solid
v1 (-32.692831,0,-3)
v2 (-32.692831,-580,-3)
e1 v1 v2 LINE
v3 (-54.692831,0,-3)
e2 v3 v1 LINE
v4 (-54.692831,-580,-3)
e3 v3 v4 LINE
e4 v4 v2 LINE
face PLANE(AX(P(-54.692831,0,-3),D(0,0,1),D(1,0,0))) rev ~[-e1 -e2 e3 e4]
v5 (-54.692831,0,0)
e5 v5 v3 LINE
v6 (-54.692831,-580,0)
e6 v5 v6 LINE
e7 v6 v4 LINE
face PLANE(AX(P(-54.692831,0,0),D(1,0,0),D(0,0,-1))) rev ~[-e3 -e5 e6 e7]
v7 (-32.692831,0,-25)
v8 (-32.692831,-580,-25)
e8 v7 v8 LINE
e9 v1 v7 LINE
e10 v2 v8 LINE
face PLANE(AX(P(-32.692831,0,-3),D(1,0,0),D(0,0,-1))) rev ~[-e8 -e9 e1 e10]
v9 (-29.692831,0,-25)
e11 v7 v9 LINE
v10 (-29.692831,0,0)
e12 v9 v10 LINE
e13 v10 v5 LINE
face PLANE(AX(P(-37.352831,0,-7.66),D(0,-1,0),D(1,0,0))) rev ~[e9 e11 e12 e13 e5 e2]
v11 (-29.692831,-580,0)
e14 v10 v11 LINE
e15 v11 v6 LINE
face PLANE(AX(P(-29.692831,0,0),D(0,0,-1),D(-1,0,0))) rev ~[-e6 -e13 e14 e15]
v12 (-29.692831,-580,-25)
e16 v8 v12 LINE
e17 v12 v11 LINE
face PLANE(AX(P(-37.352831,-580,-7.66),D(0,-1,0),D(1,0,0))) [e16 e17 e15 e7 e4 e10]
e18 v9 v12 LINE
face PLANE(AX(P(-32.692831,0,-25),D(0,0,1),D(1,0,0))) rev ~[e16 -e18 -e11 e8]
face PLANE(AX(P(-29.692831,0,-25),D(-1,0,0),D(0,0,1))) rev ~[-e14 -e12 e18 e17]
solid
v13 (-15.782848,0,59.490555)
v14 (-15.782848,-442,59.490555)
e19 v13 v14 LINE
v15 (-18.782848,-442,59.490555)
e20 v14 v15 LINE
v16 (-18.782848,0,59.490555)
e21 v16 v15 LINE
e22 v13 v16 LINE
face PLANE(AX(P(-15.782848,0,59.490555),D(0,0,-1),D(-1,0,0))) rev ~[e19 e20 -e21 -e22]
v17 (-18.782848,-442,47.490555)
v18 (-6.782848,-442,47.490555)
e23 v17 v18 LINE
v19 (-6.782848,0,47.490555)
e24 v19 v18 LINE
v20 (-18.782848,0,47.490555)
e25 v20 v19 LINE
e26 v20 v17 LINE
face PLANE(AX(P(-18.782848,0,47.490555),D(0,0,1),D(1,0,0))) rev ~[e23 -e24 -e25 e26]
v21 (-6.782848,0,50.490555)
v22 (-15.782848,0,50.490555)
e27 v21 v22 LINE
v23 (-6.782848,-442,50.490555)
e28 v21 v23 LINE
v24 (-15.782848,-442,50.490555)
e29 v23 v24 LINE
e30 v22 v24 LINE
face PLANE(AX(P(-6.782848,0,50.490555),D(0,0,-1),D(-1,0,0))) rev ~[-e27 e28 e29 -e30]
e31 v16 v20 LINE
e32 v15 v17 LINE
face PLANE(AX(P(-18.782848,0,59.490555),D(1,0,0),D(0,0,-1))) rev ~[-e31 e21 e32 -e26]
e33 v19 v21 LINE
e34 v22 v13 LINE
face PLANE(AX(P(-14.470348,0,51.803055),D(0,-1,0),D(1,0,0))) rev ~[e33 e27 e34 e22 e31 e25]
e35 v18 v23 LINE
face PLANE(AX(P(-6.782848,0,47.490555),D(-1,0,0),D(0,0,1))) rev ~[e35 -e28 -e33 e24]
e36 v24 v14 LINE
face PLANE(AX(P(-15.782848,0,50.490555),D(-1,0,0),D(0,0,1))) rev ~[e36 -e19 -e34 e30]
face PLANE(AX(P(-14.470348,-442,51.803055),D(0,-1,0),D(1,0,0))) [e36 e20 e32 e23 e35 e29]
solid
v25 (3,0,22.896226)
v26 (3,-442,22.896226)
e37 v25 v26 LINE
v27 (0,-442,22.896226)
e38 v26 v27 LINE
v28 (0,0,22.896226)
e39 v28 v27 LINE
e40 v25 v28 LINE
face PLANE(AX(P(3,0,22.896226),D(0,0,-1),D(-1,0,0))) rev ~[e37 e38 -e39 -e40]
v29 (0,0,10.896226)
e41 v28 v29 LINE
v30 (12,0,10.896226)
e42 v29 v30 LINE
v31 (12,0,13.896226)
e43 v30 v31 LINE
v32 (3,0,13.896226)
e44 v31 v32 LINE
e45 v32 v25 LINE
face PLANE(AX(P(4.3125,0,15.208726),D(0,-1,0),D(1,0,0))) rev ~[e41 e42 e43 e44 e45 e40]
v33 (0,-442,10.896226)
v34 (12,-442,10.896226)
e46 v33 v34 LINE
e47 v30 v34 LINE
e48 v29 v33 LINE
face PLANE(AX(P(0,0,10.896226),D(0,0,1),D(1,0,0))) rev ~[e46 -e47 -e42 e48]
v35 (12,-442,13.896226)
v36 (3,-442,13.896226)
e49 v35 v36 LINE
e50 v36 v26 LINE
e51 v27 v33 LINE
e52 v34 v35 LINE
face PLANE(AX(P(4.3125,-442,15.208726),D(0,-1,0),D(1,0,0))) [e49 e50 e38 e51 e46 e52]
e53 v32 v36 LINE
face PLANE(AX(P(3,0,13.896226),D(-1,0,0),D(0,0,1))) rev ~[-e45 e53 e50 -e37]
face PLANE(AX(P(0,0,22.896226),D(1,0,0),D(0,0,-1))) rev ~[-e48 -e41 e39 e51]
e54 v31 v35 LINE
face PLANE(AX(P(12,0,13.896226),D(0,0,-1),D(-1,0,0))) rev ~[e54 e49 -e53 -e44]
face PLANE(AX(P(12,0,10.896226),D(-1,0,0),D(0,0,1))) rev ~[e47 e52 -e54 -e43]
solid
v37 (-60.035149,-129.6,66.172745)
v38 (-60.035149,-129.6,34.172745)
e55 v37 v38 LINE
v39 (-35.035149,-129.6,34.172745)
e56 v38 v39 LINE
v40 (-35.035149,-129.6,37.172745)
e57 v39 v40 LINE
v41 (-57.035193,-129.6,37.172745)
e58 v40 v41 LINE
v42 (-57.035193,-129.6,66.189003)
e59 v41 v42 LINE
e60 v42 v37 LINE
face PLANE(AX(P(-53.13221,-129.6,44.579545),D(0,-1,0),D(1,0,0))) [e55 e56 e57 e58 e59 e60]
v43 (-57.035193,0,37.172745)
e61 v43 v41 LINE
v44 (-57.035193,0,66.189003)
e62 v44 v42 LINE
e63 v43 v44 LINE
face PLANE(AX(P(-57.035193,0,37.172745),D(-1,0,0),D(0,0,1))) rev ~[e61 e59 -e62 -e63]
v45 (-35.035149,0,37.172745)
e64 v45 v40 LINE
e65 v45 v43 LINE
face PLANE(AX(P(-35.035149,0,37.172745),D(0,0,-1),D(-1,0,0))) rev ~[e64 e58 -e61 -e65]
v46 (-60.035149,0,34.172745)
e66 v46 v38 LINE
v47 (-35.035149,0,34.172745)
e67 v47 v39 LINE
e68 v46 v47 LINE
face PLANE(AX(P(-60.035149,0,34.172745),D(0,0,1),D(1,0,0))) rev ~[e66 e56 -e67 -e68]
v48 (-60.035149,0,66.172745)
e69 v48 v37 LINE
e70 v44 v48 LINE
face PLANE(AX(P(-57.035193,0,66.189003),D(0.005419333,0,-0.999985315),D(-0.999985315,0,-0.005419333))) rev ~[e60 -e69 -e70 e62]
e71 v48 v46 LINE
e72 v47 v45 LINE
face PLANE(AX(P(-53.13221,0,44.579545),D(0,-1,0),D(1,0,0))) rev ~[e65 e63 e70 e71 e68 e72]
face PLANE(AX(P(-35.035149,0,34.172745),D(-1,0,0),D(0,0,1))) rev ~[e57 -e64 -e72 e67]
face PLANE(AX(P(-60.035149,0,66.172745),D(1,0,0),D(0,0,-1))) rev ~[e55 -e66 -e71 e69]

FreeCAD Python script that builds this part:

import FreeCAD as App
import Part
import Sketcher

V = App.Vector


def add_polygon(sketch, points):
    """Adds a closed chain of lines whose ends are joined by coincident constraints."""
    first, n = sketch.GeometryCount, len(points)
    for a, b in zip(points, points[1:] + points[:1]):
        sketch.addGeometry(Part.LineSegment(App.Vector(*a, 0), App.Vector(*b, 0)), False)
    for i in range(n):
        sketch.addConstraint(Sketcher.Constraint("Coincident", first + i, 2, first + (i + 1) % n, 1))

doc = App.newDocument("Part")
params = doc.addObject("Spreadsheet::Sheet", "Params")
for row, (alias, value) in enumerate([
    ("sketch1_width", "25 mm"),
    ("sketch1_height", "32 mm"),
    ("sketch1_height2", "3 mm"),
    ("sketch1_length", "3 mm"),
    ("pad1_length", "129.6 mm"),
    ("sketch2_width", "12 mm"),
    ("sketch2_width2", "9 mm"),
    ("pad2_length", "442 mm"),
    ("sketch3_width", "3 mm"),
    ("sketch3_width2", "12 mm"),
    ("pad3_length", "442 mm"),
    ("sketch4_width", "25 mm"),
    ("sketch4_width2", "22 mm"),
    ("pad4_length", "580 mm"),
], start=1):
    params.set(f"A{row}", alias)
    params.set(f"B{row}", "=" + value)
    params.setAlias(f"B{row}", alias)

body = doc.addObject("PartDesign::Body", "Body")

sketch1 = body.newObject("Sketcher::SketchObject", "Sketch")
sketch1.AttachmentSupport = (doc.getObject("XZ_Plane"), [""])
sketch1.MapMode = "FlatFace"
add_polygon(sketch1, [(-57, 66.2), (-60, 66.2), (-60, 34.2), (-35, 34.2), (-35, 37.2), (-57, 37.2)])
sketch1.addConstraint(Sketcher.Constraint("Vertical", 1))
sketch1.addConstraint(Sketcher.Constraint("Horizontal", 2))
sketch1.addConstraint(Sketcher.Constraint("Vertical", 3))
sketch1.addConstraint(Sketcher.Constraint("Horizontal", 4))
sketch1.addConstraint(Sketcher.Constraint("Vertical", 5))
sketch1.addConstraint(Sketcher.Constraint("DistanceX", 2, 1, 2, 2, 25.0))
sketch1.addConstraint(Sketcher.Constraint("DistanceY", 1, 2, 1, 1, 32.0))
sketch1.addConstraint(Sketcher.Constraint("DistanceY", 3, 1, 3, 2, 3.0))
sketch1.addConstraint(Sketcher.Constraint("Distance", 0, 3.0))
sketch1.addConstraint(Sketcher.Constraint("DistanceY", 5, 1, 5, 2, 29.016258))
sketch1.addConstraint(Sketcher.Constraint("DistanceX", 0, 2, -1, 1, 60.035149))
sketch1.addConstraint(Sketcher.Constraint("DistanceY", -1, 1, 0, 2, 66.172745))
sketch1.setExpression("Constraints[11]", "Params.sketch1_width")
sketch1.setExpression("Constraints[12]", "Params.sketch1_height")
sketch1.setExpression("Constraints[13]", "Params.sketch1_height2")
sketch1.setExpression("Constraints[14]", "Params.sketch1_length")
pad1 = body.newObject("PartDesign::Pad", "Pad")
pad1.Profile = sketch1
pad1.setExpression("Length", "Params.pad1_length")
body2 = doc.addObject("PartDesign::Body", "Body001")

sketch2 = body2.newObject("Sketcher::SketchObject", "Sketch001")
sketch2.AttachmentSupport = (doc.getObject("XZ_Plane001"), [""])
sketch2.MapMode = "FlatFace"
add_polygon(sketch2, [(0, 22.9), (0, 10.9), (12, 10.9), (12, 13.9), (3, 13.9), (3, 22.9)])
sketch2.addConstraint(Sketcher.Constraint("Vertical", 0))
sketch2.addConstraint(Sketcher.Constraint("Horizontal", 1))
sketch2.addConstraint(Sketcher.Constraint("Vertical", 2))
sketch2.addConstraint(Sketcher.Constraint("Horizontal", 3))
sketch2.addConstraint(Sketcher.Constraint("Vertical", 4))
sketch2.addConstraint(Sketcher.Constraint("Horizontal", 5))
sketch2.addConstraint(Sketcher.Constraint("PointOnObject", 0, 2, -2))
sketch2.addConstraint(Sketcher.Constraint("Equal", 1, 0))
sketch2.addConstraint(Sketcher.Constraint("Equal", 5, 2))
sketch2.addConstraint(Sketcher.Constraint("DistanceX", 1, 1, 1, 2, 12.0))
sketch2.addConstraint(Sketcher.Constraint("DistanceX", 3, 2, 3, 1, 9.0))
sketch2.addConstraint(Sketcher.Constraint("DistanceY", -1, 1, 0, 2, 10.896226))
sketch2.setExpression("Constraints[15]", "Params.sketch2_width")
sketch2.setExpression("Constraints[16]", "Params.sketch2_width2")
pad2 = body2.newObject("PartDesign::Pad", "Pad001")
pad2.Profile = sketch2
pad2.setExpression("Length", "Params.pad2_length")
body3 = doc.addObject("PartDesign::Body", "Body002")

sketch3 = body3.newObject("Sketcher::SketchObject", "Sketch002")
sketch3.AttachmentSupport = (doc.getObject("XZ_Plane002"), [""])
sketch3.MapMode = "FlatFace"
add_polygon(sketch3, [(-15.8, 59.5), (-18.8, 59.5), (-18.8, 47.5), (-6.8, 47.5), (-6.8, 50.5), (-15.8, 50.5)])
sketch3.addConstraint(Sketcher.Constraint("Horizontal", 0))
sketch3.addConstraint(Sketcher.Constraint("Vertical", 1))
sketch3.addConstraint(Sketcher.Constraint("Horizontal", 2))
sketch3.addConstraint(Sketcher.Constraint("Vertical", 3))
sketch3.addConstraint(Sketcher.Constraint("Horizontal", 4))
sketch3.addConstraint(Sketcher.Constraint("Vertical", 5))
sketch3.addConstraint(Sketcher.Constraint("Equal", 2, 1))
sketch3.addConstraint(Sketcher.Constraint("Equal", 0, 3))
sketch3.addConstraint(Sketcher.Constraint("DistanceX", 0, 2, 0, 1, 3.0))
sketch3.addConstraint(Sketcher.Constraint("DistanceX", 2, 1, 2, 2, 12.0))
sketch3.addConstraint(Sketcher.Constraint("DistanceX", 0, 2, -1, 1, 18.782848))
sketch3.addConstraint(Sketcher.Constraint("DistanceY", -1, 1, 0, 2, 59.490555))
sketch3.setExpression("Constraints[14]", "Params.sketch3_width")
sketch3.setExpression("Constraints[15]", "Params.sketch3_width2")
pad3 = body3.newObject("PartDesign::Pad", "Pad002")
pad3.Profile = sketch3
pad3.setExpression("Length", "Params.pad3_length")
body4 = doc.addObject("PartDesign::Body", "Body003")

sketch4 = body4.newObject("Sketcher::SketchObject", "Sketch003")
sketch4.AttachmentSupport = (doc.getObject("XZ_Plane003"), [""])
sketch4.MapMode = "FlatFace"
add_polygon(sketch4, [(-29.7, 0), (-54.7, 0), (-54.7, -3), (-32.7, -3), (-32.7, -25), (-29.7, -25)])
sketch4.addConstraint(Sketcher.Constraint("Horizontal", 0))
sketch4.addConstraint(Sketcher.Constraint("Vertical", 1))
sketch4.addConstraint(Sketcher.Constraint("Horizontal", 2))
sketch4.addConstraint(Sketcher.Constraint("Vertical", 3))
sketch4.addConstraint(Sketcher.Constraint("Horizontal", 4))
sketch4.addConstraint(Sketcher.Constraint("Vertical", 5))
sketch4.addConstraint(Sketcher.Constraint("PointOnObject", 0, 2, -1))
sketch4.addConstraint(Sketcher.Constraint("Equal", 4, 1))
sketch4.addConstraint(Sketcher.Constraint("Equal", 2, 3))
sketch4.addConstraint(Sketcher.Constraint("DistanceX", 0, 2, 0, 1, 25.0))
sketch4.addConstraint(Sketcher.Constraint("DistanceX", 2, 1, 2, 2, 22.0))
sketch4.addConstraint(Sketcher.Constraint("DistanceX", 0, 2, -1, 1, 54.692831))
sketch4.setExpression("Constraints[15]", "Params.sketch4_width")
sketch4.setExpression("Constraints[16]", "Params.sketch4_width2")
pad4 = body4.newObject("PartDesign::Pad", "Pad003")
pad4.Profile = sketch4
pad4.setExpression("Length", "Params.pad4_length")

doc.recompute()
